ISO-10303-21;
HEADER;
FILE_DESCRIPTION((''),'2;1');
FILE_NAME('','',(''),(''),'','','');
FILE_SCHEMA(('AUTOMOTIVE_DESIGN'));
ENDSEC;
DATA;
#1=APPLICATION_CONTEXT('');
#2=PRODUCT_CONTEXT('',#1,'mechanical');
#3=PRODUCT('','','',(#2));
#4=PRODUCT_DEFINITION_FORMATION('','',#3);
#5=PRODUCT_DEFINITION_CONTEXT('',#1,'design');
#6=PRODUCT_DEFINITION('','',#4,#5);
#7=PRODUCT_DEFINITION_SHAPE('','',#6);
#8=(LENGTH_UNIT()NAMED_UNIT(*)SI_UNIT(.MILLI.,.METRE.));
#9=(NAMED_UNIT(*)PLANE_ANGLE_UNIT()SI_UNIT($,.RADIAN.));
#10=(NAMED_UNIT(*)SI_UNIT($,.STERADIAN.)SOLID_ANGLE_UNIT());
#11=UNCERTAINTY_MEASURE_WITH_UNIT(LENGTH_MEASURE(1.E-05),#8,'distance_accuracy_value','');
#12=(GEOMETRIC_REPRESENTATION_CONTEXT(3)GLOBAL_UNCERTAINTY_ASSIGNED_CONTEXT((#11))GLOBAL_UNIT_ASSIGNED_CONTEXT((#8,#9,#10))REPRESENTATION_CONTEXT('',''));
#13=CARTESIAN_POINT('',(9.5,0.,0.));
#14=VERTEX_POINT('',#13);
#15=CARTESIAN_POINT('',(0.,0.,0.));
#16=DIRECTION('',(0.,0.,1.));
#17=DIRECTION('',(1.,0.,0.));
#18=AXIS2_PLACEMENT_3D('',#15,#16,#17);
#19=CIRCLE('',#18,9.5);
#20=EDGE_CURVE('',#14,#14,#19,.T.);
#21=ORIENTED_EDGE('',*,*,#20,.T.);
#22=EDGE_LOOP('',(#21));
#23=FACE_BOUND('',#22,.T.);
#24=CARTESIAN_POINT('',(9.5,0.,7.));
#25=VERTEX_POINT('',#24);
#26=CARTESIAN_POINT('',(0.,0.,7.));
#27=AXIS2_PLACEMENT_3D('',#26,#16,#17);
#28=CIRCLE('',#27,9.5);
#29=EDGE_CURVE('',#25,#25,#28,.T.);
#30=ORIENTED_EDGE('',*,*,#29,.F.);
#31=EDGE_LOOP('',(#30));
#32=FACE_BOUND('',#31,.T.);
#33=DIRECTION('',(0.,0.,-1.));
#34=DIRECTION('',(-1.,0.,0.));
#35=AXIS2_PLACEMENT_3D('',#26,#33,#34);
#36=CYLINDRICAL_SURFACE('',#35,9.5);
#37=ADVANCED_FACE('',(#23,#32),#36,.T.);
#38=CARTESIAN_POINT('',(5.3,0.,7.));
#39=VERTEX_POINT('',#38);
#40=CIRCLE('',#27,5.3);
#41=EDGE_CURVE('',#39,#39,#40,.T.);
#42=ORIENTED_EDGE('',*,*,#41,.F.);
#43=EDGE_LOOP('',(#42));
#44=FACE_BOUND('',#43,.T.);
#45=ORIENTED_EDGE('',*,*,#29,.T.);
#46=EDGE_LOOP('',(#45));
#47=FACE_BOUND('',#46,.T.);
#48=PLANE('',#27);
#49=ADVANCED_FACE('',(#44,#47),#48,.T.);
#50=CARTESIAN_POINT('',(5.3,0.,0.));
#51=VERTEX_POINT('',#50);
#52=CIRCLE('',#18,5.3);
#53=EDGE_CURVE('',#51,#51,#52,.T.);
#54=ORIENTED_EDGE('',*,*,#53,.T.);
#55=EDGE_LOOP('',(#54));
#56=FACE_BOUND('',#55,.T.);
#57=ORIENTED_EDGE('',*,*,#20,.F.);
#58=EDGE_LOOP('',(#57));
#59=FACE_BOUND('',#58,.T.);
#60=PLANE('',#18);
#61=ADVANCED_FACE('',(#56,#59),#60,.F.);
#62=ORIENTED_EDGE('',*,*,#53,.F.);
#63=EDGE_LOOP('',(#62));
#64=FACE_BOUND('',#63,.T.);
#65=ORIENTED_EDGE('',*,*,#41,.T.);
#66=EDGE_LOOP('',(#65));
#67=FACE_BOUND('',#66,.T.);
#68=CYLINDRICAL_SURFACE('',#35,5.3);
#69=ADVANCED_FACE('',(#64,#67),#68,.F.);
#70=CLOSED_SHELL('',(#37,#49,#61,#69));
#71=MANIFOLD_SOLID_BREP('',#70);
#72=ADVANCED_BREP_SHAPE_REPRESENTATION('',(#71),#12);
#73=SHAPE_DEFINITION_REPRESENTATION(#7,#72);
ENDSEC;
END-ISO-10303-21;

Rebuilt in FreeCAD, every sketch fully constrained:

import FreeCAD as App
import Part
import Sketcher
from FreeCAD import Vector

doc = App.newDocument("Part")
body = doc.addObject("PartDesign::Body", "Body")

sketch1 = doc.addObject("Sketcher::SketchObject", "Sketch")
body.addObject(sketch1)
sketch1.AttachmentSupport = (doc.XY_Plane, [""])
sketch1.MapMode = "FlatFace"
sketch1.addGeometry([
    Part.Circle(Vector(0, 0, 0), Vector(0, 0, 1), 9.5),
    Part.Circle(Vector(0, 0, 0), Vector(0, 0, 1), 5.3),
], False)
sketch1.addConstraint([
    Sketcher.Constraint("Coincident", 0, 3, -1, 1),
    Sketcher.Constraint("Coincident", 1, 3, -1, 1),
    Sketcher.Constraint("Diameter", 0, 19.0),
    Sketcher.Constraint("Diameter", 1, 10.6),
])
pad1 = doc.addObject("PartDesign::Pad", "Pad")
body.addObject(pad1)
pad1.Profile = sketch1
pad1.Length = 7

doc.recompute()
